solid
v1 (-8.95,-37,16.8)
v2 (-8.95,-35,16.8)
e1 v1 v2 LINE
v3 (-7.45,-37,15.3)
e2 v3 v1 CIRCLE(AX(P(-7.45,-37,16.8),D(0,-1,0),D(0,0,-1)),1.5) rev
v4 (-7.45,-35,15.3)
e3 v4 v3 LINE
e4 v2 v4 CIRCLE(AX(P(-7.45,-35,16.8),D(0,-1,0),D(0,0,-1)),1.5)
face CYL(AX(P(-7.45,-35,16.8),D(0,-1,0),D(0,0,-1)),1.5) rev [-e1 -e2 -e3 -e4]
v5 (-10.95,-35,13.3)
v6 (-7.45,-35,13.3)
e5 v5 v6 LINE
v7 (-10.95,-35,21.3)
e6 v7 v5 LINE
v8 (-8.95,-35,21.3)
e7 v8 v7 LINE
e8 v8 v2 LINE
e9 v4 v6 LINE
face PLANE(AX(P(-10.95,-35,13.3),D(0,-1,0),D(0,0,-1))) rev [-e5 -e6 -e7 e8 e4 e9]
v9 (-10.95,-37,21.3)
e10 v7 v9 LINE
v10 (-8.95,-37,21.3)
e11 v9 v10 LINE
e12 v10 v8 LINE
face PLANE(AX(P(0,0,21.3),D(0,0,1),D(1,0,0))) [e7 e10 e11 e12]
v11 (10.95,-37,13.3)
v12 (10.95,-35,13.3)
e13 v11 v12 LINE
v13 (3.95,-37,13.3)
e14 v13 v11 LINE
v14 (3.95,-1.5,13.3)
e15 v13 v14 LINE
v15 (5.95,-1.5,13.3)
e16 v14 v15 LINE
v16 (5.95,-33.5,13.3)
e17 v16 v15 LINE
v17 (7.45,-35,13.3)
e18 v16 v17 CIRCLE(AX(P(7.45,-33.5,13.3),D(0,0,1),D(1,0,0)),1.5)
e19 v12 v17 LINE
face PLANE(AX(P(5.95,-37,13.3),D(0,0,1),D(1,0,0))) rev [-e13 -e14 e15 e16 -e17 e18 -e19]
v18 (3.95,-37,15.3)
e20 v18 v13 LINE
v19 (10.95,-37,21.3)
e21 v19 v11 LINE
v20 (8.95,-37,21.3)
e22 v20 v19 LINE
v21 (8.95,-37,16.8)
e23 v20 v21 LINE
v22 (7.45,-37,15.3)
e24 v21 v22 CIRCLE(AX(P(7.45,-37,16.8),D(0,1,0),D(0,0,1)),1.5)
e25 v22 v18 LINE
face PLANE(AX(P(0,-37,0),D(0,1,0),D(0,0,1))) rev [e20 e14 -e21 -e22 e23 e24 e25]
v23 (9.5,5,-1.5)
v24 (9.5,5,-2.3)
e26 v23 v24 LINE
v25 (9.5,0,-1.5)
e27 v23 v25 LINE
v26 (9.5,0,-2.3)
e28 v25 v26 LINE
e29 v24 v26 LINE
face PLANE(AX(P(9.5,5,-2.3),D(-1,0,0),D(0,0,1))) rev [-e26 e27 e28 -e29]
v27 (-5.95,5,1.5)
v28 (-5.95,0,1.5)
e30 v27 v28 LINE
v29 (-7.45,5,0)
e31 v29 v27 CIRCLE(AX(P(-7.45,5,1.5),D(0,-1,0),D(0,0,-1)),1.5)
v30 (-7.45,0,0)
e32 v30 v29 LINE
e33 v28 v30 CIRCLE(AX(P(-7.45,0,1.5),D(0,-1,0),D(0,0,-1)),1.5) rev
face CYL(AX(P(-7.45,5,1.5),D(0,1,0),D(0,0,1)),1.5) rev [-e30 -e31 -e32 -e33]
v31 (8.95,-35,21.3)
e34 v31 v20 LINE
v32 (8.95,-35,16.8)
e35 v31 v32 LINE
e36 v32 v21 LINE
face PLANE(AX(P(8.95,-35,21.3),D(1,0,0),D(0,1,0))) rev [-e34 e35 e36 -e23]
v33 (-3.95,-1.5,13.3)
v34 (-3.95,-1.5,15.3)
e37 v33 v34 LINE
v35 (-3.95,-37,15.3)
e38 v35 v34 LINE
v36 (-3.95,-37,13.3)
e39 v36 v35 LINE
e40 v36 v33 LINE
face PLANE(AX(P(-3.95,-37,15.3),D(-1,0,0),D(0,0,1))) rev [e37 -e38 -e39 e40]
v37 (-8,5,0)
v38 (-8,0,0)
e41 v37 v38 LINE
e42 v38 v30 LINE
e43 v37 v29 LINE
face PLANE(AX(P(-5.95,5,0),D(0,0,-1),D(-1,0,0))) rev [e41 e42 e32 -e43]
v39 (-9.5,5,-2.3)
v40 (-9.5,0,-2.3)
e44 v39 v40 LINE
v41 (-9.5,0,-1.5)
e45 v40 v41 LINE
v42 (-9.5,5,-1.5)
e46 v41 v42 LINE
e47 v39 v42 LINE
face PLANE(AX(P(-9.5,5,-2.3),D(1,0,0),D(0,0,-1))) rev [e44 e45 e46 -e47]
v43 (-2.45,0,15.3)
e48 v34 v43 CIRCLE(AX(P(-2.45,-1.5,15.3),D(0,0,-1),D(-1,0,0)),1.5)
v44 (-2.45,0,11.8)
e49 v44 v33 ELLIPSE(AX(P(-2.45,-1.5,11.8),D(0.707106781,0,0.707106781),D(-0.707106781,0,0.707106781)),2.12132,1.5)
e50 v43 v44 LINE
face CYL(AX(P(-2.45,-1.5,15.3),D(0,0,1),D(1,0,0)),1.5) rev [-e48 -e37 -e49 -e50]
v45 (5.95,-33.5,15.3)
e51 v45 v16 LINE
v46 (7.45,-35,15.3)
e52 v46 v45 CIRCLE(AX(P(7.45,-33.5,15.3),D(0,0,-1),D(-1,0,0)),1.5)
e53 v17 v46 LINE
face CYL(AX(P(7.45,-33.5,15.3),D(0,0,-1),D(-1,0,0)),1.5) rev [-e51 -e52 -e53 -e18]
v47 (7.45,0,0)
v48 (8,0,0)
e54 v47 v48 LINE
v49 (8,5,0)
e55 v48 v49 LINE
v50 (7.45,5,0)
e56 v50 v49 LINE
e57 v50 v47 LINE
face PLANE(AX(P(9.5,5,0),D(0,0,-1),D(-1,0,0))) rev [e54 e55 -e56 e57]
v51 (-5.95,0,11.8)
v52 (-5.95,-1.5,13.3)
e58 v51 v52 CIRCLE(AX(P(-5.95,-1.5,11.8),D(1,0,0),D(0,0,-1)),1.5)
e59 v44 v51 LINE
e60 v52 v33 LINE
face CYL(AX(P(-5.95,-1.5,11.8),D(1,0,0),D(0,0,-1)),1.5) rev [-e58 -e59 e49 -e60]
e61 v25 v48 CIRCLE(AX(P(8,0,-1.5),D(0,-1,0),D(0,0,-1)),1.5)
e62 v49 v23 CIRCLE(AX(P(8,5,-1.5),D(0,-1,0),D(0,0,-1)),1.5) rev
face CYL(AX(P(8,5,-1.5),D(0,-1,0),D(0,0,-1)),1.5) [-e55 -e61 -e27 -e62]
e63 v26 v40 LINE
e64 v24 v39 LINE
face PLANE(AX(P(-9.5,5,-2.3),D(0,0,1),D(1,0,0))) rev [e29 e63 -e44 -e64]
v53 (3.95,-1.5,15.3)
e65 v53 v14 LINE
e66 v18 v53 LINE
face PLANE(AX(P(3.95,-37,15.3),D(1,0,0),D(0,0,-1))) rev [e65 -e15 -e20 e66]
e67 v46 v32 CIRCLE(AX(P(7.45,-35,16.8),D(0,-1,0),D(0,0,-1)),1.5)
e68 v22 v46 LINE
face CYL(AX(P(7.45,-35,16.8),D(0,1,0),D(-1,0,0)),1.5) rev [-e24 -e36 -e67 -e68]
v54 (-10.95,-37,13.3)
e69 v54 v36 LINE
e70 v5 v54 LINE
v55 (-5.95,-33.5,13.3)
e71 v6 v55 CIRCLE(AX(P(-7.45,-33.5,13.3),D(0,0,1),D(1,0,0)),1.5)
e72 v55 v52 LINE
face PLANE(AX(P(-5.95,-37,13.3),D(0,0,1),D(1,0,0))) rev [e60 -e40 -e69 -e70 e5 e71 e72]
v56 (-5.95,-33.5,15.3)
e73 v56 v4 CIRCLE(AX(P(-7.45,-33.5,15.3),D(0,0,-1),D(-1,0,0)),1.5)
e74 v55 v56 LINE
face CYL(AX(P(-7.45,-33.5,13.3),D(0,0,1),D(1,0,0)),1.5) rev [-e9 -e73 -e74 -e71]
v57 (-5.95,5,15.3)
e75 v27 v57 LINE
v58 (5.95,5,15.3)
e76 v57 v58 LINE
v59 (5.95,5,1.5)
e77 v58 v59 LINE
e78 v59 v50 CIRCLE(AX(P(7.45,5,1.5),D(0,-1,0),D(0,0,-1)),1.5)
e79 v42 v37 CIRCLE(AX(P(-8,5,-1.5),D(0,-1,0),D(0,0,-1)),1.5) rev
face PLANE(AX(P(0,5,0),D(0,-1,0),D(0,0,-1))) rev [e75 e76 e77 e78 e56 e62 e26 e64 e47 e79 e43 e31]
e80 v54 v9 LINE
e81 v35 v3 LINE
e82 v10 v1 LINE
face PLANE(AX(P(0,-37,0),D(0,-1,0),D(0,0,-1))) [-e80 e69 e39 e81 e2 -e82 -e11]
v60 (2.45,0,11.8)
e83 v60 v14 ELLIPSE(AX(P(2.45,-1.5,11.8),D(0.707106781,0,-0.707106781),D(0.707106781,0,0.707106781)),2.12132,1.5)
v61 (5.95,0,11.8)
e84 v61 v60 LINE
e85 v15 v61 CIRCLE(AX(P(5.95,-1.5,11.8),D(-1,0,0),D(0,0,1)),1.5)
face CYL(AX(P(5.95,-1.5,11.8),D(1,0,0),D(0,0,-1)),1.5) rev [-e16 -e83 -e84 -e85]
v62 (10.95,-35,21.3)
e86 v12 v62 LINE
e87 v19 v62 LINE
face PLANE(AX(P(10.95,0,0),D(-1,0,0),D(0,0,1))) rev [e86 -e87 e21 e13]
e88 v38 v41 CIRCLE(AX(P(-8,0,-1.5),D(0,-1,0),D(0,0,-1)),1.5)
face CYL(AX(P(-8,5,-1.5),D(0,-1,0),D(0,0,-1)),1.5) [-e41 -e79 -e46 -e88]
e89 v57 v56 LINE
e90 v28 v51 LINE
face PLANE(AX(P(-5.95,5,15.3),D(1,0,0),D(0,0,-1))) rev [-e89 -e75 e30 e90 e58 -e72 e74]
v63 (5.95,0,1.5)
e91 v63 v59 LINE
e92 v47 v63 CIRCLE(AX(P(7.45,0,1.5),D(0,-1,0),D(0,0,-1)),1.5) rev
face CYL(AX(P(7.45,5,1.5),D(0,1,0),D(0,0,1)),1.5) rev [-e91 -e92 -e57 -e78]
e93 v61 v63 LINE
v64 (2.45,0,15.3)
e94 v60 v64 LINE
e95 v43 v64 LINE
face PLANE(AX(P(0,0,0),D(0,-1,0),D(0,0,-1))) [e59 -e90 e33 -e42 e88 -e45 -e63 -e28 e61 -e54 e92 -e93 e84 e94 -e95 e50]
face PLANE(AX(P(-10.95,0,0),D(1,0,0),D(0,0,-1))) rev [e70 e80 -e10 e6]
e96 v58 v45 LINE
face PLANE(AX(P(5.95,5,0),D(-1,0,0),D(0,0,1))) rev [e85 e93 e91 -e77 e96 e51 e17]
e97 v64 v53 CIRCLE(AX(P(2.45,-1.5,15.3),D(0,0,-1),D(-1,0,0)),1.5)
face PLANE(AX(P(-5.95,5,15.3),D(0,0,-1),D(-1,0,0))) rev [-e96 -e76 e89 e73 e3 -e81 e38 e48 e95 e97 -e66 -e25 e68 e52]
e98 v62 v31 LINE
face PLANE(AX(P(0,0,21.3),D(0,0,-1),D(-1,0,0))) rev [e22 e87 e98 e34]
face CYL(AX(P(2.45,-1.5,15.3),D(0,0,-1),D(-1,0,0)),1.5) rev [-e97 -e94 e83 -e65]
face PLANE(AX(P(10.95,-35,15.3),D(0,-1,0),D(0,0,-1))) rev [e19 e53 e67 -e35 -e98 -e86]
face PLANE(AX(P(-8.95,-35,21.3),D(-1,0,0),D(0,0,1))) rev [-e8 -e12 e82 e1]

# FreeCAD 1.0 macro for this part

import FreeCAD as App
import Part
import Sketcher

V = App.Vector
Q = App.Units.Quantity


def edges_at(feature, points):
    """Names of the edges that pass closest to the given points."""
    edges = feature.Shape.Edges
    near = lambda p: min(range(len(edges)), key=lambda i: edges[i].distToShape(Part.Vertex(*p))[0])
    return sorted({f"Edge{near(p) + 1}" for p in points})

doc = App.newDocument("Part")
body = doc.addObject("PartDesign::Body", "Body")

# Sketch on XZ plane
sketch1 = body.newObject("Sketcher::SketchObject", "Sketch")
sketch1.AttachmentSupport = (doc.getObject("XZ_Plane"), [""])
sketch1.MapMode = "FlatFace"
sketch1.addGeometry([
    Part.LineSegment(V(9.5, -2.3, 0), V(-9.5, -2.3, 0)),  # 0
    Part.LineSegment(V(-9.5, -2.3, 0), V(-9.5, 0, 0)),  # 1
    Part.LineSegment(V(-9.5, 0, 0), V(-5.95, 0, 0)),  # 2
    Part.LineSegment(V(-5.95, 0, 0), V(-5.95, 15.3, 0)),  # 3
    Part.LineSegment(V(-5.95, 15.3, 0), V(5.95, 15.3, 0)),  # 4
    Part.LineSegment(V(5.95, 15.3, 0), V(5.95, 0, 0)),  # 5
    Part.LineSegment(V(5.95, 0, 0), V(9.5, 0, 0)),  # 6
    Part.LineSegment(V(9.5, 0, 0), V(9.5, -2.3, 0)),  # 7
], False)
sketch1.addConstraint([
    Sketcher.Constraint("Coincident", 0, 2, 1, 1),
    Sketcher.Constraint("Coincident", 1, 2, 2, 1),
    Sketcher.Constraint("Coincident", 2, 2, 3, 1),
    Sketcher.Constraint("Coincident", 3, 2, 4, 1),
    Sketcher.Constraint("Coincident", 4, 2, 5, 1),
    Sketcher.Constraint("Coincident", 5, 2, 6, 1),
    Sketcher.Constraint("Coincident", 6, 2, 7, 1),
    Sketcher.Constraint("Coincident", 7, 2, 0, 1),
    Sketcher.Constraint("Horizontal", 0),
    Sketcher.Constraint("Vertical", 1),
    Sketcher.Constraint("Horizontal", 2),
    Sketcher.Constraint("Vertical", 3),
    Sketcher.Constraint("Horizontal", 4),
    Sketcher.Constraint("Vertical", 5),
    Sketcher.Constraint("Horizontal", 6),
    Sketcher.Constraint("Vertical", 7),
    Sketcher.Constraint("Symmetric", 2, 2, 5, 2, -1, 1),
    Sketcher.Constraint("Symmetric", 1, 2, 6, 2, -2),
    Sketcher.Constraint("DistanceX", 0, 2, 0, 1, Q("19 mm")),
    Sketcher.Constraint("DistanceX", 4, 1, 4, 2, Q("11.9 mm")),
    Sketcher.Constraint("DistanceY", 1, 1, 1, 2, Q("2.3 mm")),
    Sketcher.Constraint("DistanceY", 3, 1, 3, 2, Q("15.3 mm")),
])
pad1 = body.newObject("PartDesign::Pad", "Pad")
pad1.Profile = sketch1
pad1.Length = 5
pad1.Reversed = True

# Sketch on XZ plane
sketch2 = body.newObject("Sketcher::SketchObject", "Sketch001")
sketch2.AttachmentSupport = (doc.getObject("XZ_Plane"), [""])
sketch2.MapMode = "FlatFace"
sketch2.addGeometry([
    Part.LineSegment(V(-5.95, 15.3, 0), V(-5.95, 13.3, 0)),  # 0
    Part.LineSegment(V(-5.95, 13.3, 0), V(-3.95, 13.3, 0)),  # 1
    Part.LineSegment(V(-3.95, 13.3, 0), V(-3.95, 15.3, 0)),  # 2
    Part.LineSegment(V(-3.95, 15.3, 0), V(-5.95, 15.3, 0)),  # 3
    Part.LineSegment(V(3.95, 15.3, 0), V(3.95, 13.3, 0)),  # 4
    Part.LineSegment(V(3.95, 13.3, 0), V(5.95, 13.3, 0)),  # 5
    Part.LineSegment(V(5.95, 13.3, 0), V(5.95, 15.3, 0)),  # 6
    Part.LineSegment(V(5.95, 15.3, 0), V(3.95, 15.3, 0)),  # 7
], False)
sketch2.addConstraint([
    Sketcher.Constraint("Coincident", 0, 2, 1, 1),
    Sketcher.Constraint("Coincident", 1, 2, 2, 1),
    Sketcher.Constraint("Coincident", 2, 2, 3, 1),
    Sketcher.Constraint("Coincident", 3, 2, 0, 1),
    Sketcher.Constraint("Coincident", 4, 2, 5, 1),
    Sketcher.Constraint("Coincident", 5, 2, 6, 1),
    Sketcher.Constraint("Coincident", 6, 2, 7, 1),
    Sketcher.Constraint("Coincident", 7, 2, 4, 1),
    Sketcher.Constraint("Vertical", 0),
    Sketcher.Constraint("Horizontal", 1),
    Sketcher.Constraint("Vertical", 2),
    Sketcher.Constraint("Horizontal", 3),
    Sketcher.Constraint("Vertical", 4),
    Sketcher.Constraint("Horizontal", 5),
    Sketcher.Constraint("Vertical", 6),
    Sketcher.Constraint("Horizontal", 7),
    Sketcher.Constraint("Symmetric", 1, 2, 4, 2, -2),
    Sketcher.Constraint("Symmetric", 3, 2, 6, 2, -2),
    Sketcher.Constraint("Equal", 7, 0),
    Sketcher.Constraint("DistanceX", 1, 1, 1, 2, Q("2 mm")),
    Sketcher.Constraint("DistanceY", -1, 1, 0, 2, Q("13.3 mm")),
    Sketcher.Constraint("DistanceX", 1, 2, 4, 2, Q("7.9 mm")),
])
pad2 = body.newObject("PartDesign::Pad", "Pad001")
pad2.Profile = sketch2
pad2.Length = 37

# Sketch on YZ plane
sketch3 = body.newObject("Sketcher::SketchObject", "Sketch002")
sketch3.AttachmentSupport = (doc.getObject("YZ_Plane"), [""])
sketch3.MapMode = "FlatFace"
sketch3.AttachmentOffset = App.Placement(V(0, 0, -5.95), App.Rotation())
sketch3.addGeometry([
    Part.LineSegment(V(-35, 13.3, 0), V(-37, 13.3, 0)),
    Part.LineSegment(V(-37, 13.3, 0), V(-37, 15.3, 0)),
    Part.LineSegment(V(-37, 15.3, 0), V(-35, 15.3, 0)),
    Part.LineSegment(V(-35, 15.3, 0), V(-35, 13.3, 0)),
], False)
sketch3.addConstraint([
    Sketcher.Constraint("Coincident", 0, 2, 1, 1),
    Sketcher.Constraint("Coincident", 1, 2, 2, 1),
    Sketcher.Constraint("Coincident", 2, 2, 3, 1),
    Sketcher.Constraint("Coincident", 3, 2, 0, 1),
    Sketcher.Constraint("Horizontal", 0),
    Sketcher.Constraint("Vertical", 1),
    Sketcher.Constraint("Horizontal", 2),
    Sketcher.Constraint("Vertical", 3),
    Sketcher.Constraint("Equal", 2, 1),
    Sketcher.Constraint("DistanceX", 0, 2, 0, 1, Q("2 mm")),
    Sketcher.Constraint("DistanceX", 0, 2, -1, 1, Q("37 mm")),
    Sketcher.Constraint("DistanceY", -1, 1, 0, 2, Q("13.3 mm")),
])
pad3 = body.newObject("PartDesign::Pad", "Pad002")
pad3.Profile = sketch3
pad3.Length = 5
pad3.Reversed = True

# Sketch on YZ plane
sketch4 = body.newObject("Sketcher::SketchObject", "Sketch003")
sketch4.AttachmentSupport = (doc.getObject("YZ_Plane"), [""])
sketch4.MapMode = "FlatFace"
sketch4.AttachmentOffset = App.Placement(V(0, 0, 5.95), App.Rotation())
sketch4.addGeometry([
    Part.LineSegment(V(-35, 15.3, 0), V(-37, 15.3, 0)),
    Part.LineSegment(V(-37, 15.3, 0), V(-37, 13.3, 0)),
    Part.LineSegment(V(-37, 13.3, 0), V(-35, 13.3, 0)),
    Part.LineSegment(V(-35, 13.3, 0), V(-35, 15.3, 0)),
], False)
sketch4.addConstraint([
    Sketcher.Constraint("Coincident", 0, 2, 1, 1),
    Sketcher.Constraint("Coincident", 1, 2, 2, 1),
    Sketcher.Constraint("Coincident", 2, 2, 3, 1),
    Sketcher.Constraint("Coincident", 3, 2, 0, 1),
    Sketcher.Constraint("Horizontal", 0),
    Sketcher.Constraint("Vertical", 1),
    Sketcher.Constraint("Horizontal", 2),
    Sketcher.Constraint("Vertical", 3),
    Sketcher.Constraint("Equal", 2, 1),
    Sketcher.Constraint("DistanceX", 0, 2, 0, 1, Q("2 mm")),
    Sketcher.Constraint("DistanceX", 0, 2, -1, 1, Q("37 mm")),
    Sketcher.Constraint("DistanceY", -1, 1, 0, 2, Q("15.3 mm")),
])
pad4 = body.newObject("PartDesign::Pad", "Pad003")
pad4.Profile = sketch4
pad4.Length = 5

# Sketch on XY plane
sketch5 = body.newObject("Sketcher::SketchObject", "Sketch004")
sketch5.AttachmentSupport = (doc.getObject("XY_Plane"), [""])
sketch5.MapMode = "FlatFace"
sketch5.AttachmentOffset = App.Placement(V(0, 0, 15.3), App.Rotation())
sketch5.addGeometry([
    Part.LineSegment(V(-10.95, -35, 0), V(-10.95, -37, 0)),  # 0
    Part.LineSegment(V(-10.95, -37, 0), V(-8.95, -37, 0)),  # 1
    Part.LineSegment(V(-8.95, -37, 0), V(-8.95, -35, 0)),  # 2
    Part.LineSegment(V(-8.95, -35, 0), V(-10.95, -35, 0)),  # 3
    Part.LineSegment(V(8.95, -35, 0), V(8.95, -37, 0)),  # 4
    Part.LineSegment(V(8.95, -37, 0), V(10.95, -37, 0)),  # 5
    Part.LineSegment(V(10.95, -37, 0), V(10.95, -35, 0)),  # 6
    Part.LineSegment(V(10.95, -35, 0), V(8.95, -35, 0)),  # 7
], False)
sketch5.addConstraint([
    Sketcher.Constraint("Coincident", 0, 2, 1, 1),
    Sketcher.Constraint("Coincident", 1, 2, 2, 1),
    Sketcher.Constraint("Coincident", 2, 2, 3, 1),
    Sketcher.Constraint("Coincident", 3, 2, 0, 1),
    Sketcher.Constraint("Coincident", 4, 2, 5, 1),
    Sketcher.Constraint("Coincident", 5, 2, 6, 1),
    Sketcher.Constraint("Coincident", 6, 2, 7, 1),
    Sketcher.Constraint("Coincident", 7, 2, 4, 1),
    Sketcher.Constraint("Vertical", 0),
    Sketcher.Constraint("Horizontal", 1),
    Sketcher.Constraint("Vertical", 2),
    Sketcher.Constraint("Horizontal", 3),
    Sketcher.Constraint("Vertical", 4),
    Sketcher.Constraint("Horizontal", 5),
    Sketcher.Constraint("Vertical", 6),
    Sketcher.Constraint("Horizontal", 7),
    Sketcher.Constraint("Symmetric", 1, 2, 4, 2, -2),
    Sketcher.Constraint("Symmetric", 3, 2, 6, 2, -2),
    Sketcher.Constraint("Equal", 7, 0),
    Sketcher.Constraint("DistanceX", 1, 1, 1, 2, Q("2 mm")),
    Sketcher.Constraint("DistanceY", 0, 2, -1, 1, Q("37 mm")),
    Sketcher.Constraint("DistanceX", 1, 2, 4, 2, Q("17.9 mm")),
])
pad5 = body.newObject("PartDesign::Pad", "Pad004")
pad5.Profile = sketch5
pad5.Length = 6
doc.recompute()

fillet = body.newObject("PartDesign::Fillet", "Fillet")
fillet.Base = (pad5, edges_at(pad5, [
    (9.5, 2.5, 0),
    (5.95, 2.5, 0),
    (-5.95, 2.5, 0),
    (-9.5, 2.5, 0),
    (-4.95, 0, 13.3),
    (-3.95, 0, 14.3),
    (3.95, 0, 14.3),
    (4.95, 0, 13.3),
    (-5.95, -35, 14.3),
    (5.95, -35, 14.3),
]))
fillet.Radius = 1.5
doc.recompute()

fillet2 = body.newObject("PartDesign::Fillet", "Fillet001")
fillet2.Base = (fillet, edges_at(fillet, [(-8.95, -36, 15.3), (8.95, -36, 15.3)]))
fillet2.Radius = 1.5

doc.recompute()
